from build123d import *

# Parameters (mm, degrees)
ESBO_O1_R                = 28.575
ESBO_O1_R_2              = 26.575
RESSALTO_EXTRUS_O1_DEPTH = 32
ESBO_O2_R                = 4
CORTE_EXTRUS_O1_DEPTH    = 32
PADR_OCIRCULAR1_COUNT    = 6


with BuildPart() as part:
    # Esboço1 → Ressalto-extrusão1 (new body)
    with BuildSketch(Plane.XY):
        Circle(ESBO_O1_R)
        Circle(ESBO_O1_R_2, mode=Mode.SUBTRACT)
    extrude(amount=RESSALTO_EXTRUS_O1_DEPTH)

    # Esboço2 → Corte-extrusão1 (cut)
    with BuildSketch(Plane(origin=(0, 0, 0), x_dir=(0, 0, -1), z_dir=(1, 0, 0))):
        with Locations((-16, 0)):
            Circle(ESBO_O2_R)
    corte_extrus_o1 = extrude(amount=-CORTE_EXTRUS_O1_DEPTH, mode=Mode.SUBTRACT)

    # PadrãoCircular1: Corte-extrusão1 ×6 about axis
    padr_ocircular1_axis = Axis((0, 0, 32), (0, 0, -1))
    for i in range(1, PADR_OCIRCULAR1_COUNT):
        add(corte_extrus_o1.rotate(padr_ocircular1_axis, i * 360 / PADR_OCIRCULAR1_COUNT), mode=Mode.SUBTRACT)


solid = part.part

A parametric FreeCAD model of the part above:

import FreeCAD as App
import Part
import Sketcher

doc = App.newDocument("Part")
params = doc.addObject("Spreadsheet::Sheet", "Params")
for row, (alias, value) in enumerate([
    ("sketch1_diameter", "57.15 mm"),
    ("sketch1_diameter2", "53.15 mm"),
    ("pad1_length", "32 mm"),
    ("sketch2_diameter", "8 mm"),
    ("pocket1_length", "32 mm"),
], start=1):
    params.set(f"A{row}", alias)
    params.set(f"B{row}", "=" + value)
    params.setAlias(f"B{row}", alias)

body = doc.addObject("PartDesign::Body", "Body")

sketch1 = doc.addObject("Sketcher::SketchObject", "Sketch")
body.addObject(sketch1)
sketch1.AttachmentSupport = (doc.XY_Plane, [""])
sketch1.MapMode = "FlatFace"
sketch1.addGeometry([
    Part.Circle(App.Vector(0, 0, 0), App.Vector(0, 0, 1), 29),
    Part.Circle(App.Vector(0, 0, 0), App.Vector(0, 0, 1), 27),
], False)
sketch1.addConstraint([
    Sketcher.Constraint("Coincident", 0, 3, -1, 1),
    Sketcher.Constraint("Coincident", 1, 3, -1, 1),
    Sketcher.Constraint("Diameter", 0, 57.15),
    Sketcher.Constraint("Diameter", 1, 53.15),
])
sketch1.setExpression("Constraints[2]", "Params.sketch1_diameter")
sketch1.setExpression("Constraints[3]", "Params.sketch1_diameter2")
pad1 = doc.addObject("PartDesign::Pad", "Pad")
body.addObject(pad1)
pad1.Profile = sketch1
pad1.setExpression("Length", "Params.pad1_length")

sketch2 = doc.addObject("Sketcher::SketchObject", "Sketch001")
body.addObject(sketch2)
sketch2.AttachmentSupport = (doc.YZ_Plane, [""])
sketch2.MapMode = "FlatFace"
sketch2.addGeometry(Part.Circle(App.Vector(0, 16, 0), App.Vector(0, 0, 1), 4), False)
sketch2.addConstraint([
    Sketcher.Constraint("PointOnObject", 0, 3, -2),
    Sketcher.Constraint("Diameter", 0, 8.0),
    Sketcher.Constraint("DistanceY", -1, 1, 0, 3, 16.0),
])
sketch2.setExpression("Constraints[1]", "Params.sketch2_diameter")
pocket1 = doc.addObject("PartDesign::Pocket", "Pocket")
body.addObject(pocket1)
pocket1.Profile = sketch2
pocket1.setExpression("Length", "Params.pocket1_length")
doc.recompute()

polarpattern = doc.addObject("PartDesign::PolarPattern", "PolarPattern")
body.addObject(polarpattern)
polarpattern.Originals = [pocket1]
polarpattern.Axis = (doc.Z_Axis, [""])
polarpattern.Angle = 360
polarpattern.Occurrences = 6
body.Tip = polarpattern

doc.recompute()
